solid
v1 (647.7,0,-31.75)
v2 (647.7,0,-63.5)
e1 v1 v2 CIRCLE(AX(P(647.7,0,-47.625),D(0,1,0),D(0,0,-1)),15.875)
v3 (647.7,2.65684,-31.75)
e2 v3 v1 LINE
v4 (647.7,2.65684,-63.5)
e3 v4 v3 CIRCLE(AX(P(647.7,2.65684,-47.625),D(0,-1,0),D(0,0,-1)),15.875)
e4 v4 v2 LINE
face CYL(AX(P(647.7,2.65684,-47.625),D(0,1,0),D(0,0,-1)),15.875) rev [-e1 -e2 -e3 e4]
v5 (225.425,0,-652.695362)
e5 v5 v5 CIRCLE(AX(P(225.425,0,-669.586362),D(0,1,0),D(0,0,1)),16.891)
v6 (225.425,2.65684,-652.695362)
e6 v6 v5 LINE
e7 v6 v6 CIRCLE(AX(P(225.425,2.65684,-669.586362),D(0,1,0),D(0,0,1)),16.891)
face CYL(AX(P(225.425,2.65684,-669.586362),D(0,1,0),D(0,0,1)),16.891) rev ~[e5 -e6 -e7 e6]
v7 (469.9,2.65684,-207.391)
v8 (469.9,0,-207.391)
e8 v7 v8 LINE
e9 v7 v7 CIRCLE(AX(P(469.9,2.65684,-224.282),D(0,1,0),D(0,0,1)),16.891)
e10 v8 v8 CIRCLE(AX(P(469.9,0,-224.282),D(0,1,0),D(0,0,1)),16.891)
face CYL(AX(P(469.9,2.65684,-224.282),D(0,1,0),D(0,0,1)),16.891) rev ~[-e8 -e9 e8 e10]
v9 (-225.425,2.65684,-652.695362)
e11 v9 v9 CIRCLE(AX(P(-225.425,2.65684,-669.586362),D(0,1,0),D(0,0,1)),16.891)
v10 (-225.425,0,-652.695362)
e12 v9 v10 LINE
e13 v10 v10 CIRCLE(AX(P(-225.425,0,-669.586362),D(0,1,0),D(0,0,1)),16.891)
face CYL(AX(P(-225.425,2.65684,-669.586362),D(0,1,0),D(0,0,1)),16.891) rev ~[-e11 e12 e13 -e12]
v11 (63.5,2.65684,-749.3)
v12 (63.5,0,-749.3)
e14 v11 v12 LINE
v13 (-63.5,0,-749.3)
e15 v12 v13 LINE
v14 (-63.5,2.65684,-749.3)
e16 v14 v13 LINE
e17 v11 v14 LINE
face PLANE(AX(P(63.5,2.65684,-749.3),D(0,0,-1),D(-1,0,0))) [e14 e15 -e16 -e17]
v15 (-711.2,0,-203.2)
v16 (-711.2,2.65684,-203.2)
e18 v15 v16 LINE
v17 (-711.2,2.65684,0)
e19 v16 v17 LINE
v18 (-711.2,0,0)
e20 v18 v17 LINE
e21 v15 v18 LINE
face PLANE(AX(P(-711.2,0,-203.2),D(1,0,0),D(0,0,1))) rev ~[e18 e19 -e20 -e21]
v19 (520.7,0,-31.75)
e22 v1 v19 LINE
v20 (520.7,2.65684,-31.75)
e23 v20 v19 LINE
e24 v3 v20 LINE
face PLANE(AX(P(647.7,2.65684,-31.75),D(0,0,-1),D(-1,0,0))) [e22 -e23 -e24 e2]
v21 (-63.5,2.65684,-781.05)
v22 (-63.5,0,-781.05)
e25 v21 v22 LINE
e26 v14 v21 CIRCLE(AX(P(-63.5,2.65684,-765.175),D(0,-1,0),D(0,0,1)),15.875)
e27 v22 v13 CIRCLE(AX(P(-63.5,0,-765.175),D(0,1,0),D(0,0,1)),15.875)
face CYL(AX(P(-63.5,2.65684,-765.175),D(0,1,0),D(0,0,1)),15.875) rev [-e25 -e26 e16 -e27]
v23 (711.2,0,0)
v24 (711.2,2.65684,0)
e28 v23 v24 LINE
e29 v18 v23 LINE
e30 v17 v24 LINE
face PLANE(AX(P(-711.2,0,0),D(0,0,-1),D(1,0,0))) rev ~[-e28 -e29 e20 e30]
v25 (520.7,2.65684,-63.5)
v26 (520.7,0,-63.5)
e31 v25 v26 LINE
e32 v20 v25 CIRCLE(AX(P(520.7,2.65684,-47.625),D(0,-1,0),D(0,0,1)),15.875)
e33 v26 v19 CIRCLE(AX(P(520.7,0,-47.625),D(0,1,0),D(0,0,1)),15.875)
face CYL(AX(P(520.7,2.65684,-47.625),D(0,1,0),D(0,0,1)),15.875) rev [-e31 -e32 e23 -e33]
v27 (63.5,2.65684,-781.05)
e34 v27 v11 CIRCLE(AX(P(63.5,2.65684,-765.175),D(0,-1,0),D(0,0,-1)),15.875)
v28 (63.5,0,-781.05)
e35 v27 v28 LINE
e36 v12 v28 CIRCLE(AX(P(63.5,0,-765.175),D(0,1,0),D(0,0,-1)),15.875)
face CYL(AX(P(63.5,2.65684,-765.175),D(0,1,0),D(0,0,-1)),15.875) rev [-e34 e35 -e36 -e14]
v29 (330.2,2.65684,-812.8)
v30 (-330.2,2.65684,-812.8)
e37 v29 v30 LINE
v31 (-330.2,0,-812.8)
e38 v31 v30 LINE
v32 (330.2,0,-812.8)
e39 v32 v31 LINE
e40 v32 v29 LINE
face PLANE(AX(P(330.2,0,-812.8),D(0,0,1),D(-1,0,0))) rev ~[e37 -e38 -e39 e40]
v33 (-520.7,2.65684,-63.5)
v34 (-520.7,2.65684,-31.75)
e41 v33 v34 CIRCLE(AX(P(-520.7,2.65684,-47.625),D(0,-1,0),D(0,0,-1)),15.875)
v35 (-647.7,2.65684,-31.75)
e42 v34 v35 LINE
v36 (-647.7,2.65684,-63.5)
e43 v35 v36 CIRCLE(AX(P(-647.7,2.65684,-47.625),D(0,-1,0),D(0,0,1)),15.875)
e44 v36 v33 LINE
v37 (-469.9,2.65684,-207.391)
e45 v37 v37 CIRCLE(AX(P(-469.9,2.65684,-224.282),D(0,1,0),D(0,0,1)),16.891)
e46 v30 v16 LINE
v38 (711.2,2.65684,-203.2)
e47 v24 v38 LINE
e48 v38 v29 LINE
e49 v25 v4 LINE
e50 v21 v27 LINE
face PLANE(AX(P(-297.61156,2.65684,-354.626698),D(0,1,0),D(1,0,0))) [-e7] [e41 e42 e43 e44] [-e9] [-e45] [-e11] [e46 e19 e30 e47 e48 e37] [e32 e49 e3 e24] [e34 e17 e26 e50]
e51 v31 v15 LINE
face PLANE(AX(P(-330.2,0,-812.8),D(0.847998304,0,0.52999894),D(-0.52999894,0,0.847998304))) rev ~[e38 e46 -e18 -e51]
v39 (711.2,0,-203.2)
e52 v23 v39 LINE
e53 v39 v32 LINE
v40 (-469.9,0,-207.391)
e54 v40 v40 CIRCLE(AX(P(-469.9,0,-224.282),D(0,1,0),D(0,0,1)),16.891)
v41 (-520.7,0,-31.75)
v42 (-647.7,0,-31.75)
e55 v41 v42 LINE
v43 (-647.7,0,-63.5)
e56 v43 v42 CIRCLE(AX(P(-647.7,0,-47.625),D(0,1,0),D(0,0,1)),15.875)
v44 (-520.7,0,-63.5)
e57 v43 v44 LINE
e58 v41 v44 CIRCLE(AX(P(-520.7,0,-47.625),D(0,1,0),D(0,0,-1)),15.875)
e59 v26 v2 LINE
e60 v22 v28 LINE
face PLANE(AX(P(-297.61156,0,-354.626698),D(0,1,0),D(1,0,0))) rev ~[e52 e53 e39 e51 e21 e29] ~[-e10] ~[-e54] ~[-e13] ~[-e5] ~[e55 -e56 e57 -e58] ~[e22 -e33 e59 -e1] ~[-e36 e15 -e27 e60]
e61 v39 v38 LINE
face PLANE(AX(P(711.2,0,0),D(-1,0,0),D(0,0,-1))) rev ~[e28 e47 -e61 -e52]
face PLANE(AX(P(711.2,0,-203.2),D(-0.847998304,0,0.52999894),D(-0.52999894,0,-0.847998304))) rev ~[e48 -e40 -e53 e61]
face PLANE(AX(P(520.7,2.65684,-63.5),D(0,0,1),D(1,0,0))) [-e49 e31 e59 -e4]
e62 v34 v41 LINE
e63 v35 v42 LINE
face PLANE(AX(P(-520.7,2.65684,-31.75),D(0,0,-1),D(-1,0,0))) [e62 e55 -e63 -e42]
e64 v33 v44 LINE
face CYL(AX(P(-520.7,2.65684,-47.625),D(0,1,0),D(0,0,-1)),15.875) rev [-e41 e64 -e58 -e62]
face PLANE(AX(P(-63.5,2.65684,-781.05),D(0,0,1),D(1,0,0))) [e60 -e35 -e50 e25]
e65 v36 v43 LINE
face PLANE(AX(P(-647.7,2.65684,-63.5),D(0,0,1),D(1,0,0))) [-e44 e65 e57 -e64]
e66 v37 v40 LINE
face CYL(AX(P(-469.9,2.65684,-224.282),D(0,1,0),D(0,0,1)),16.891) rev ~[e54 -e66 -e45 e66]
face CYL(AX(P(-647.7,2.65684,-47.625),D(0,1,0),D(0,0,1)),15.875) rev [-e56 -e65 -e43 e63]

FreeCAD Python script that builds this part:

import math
import FreeCAD as App
import Part
import Sketcher
from FreeCAD import Vector
Q = App.Units.Quantity

doc = App.newDocument("Part")
body = doc.addObject("PartDesign::Body", "Body")

# Sketch on XZ plane
sketch1 = body.newObject("Sketcher::SketchObject", "Sketch")
sketch1.AttachmentSupport = (doc.getObject("XZ_Plane"), [""])
sketch1.MapMode = "FlatFace"
sketch1.addGeometry([
    Part.LineSegment(Vector(-711.2, -203.2, 0), Vector(-711.2, 0, 0)),  # 0
    Part.LineSegment(Vector(-711.2, 0, 0), Vector(711.2, 0, 0)),  # 1
    Part.LineSegment(Vector(711.2, 0, 0), Vector(711.2, -203.2, 0)),  # 2
    Part.LineSegment(Vector(711.2, -203.2, 0), Vector(330.2, -812.8, 0)),  # 3
    Part.LineSegment(Vector(330.2, -812.8, 0), Vector(-330.2, -812.8, 0)),  # 4
    Part.LineSegment(Vector(-330.2, -812.8, 0), Vector(-711.2, -203.2, 0)),  # 5
], False)
sketch1.addConstraint([
    Sketcher.Constraint("Coincident", 0, 2, 1, 1),
    Sketcher.Constraint("Coincident", 1, 2, 2, 1),
    Sketcher.Constraint("Coincident", 2, 2, 3, 1),
    Sketcher.Constraint("Coincident", 3, 2, 4, 1),
    Sketcher.Constraint("Coincident", 4, 2, 5, 1),
    Sketcher.Constraint("Coincident", 5, 2, 0, 1),
    Sketcher.Constraint("Vertical", 0),
    Sketcher.Constraint("Horizontal", 1),
    Sketcher.Constraint("Vertical", 2),
    Sketcher.Constraint("Horizontal", 4),
    Sketcher.Constraint("Symmetric", 0, 2, 1, 2, -1, 1),
    Sketcher.Constraint("Horizontal", 2, 2, 5, 2),
    Sketcher.Constraint("Equal", 3, 5),
    Sketcher.Constraint("DistanceX", 1, 1, 1, 2, Q("56 in")),
    Sketcher.Constraint("DistanceX", 4, 2, 4, 1, Q("26 in")),
    Sketcher.Constraint("DistanceY", 0, 1, 0, 2, Q("8 in")),
    Sketcher.Constraint("DistanceY", 3, 2, -1, 1, Q("32 in")),
])
pad1 = body.newObject("PartDesign::Pad", "Pad")
pad1.Profile = sketch1
pad1.Length = Q("0.1046 in")
pad1.Reversed = True

# Sketch on XZ plane
sketch2 = body.newObject("Sketcher::SketchObject", "Sketch001")
sketch2.AttachmentSupport = (doc.getObject("XZ_Plane"), [""])
sketch2.MapMode = "FlatFace"
sketch2.AttachmentOffset = App.Placement(Vector(0, 0, -0.1046 * 25.4), App.Rotation())
sketch2.addGeometry([
    Part.LineSegment(Vector(63.5, -781.05, 0), Vector(-63.5, -781.05, 0)),  # 0
    Part.ArcOfCircle(Part.Circle(Vector(-63.5, -765.175, 0), Vector(0, 0, 1), 15.875), math.radians(90), math.radians(270)),  # 1
    Part.LineSegment(Vector(-63.5, -749.3, 0), Vector(63.5, -749.3, 0)),  # 2
    Part.ArcOfCircle(Part.Circle(Vector(63.5, -765.175, 0), Vector(0, 0, 1), 15.875), math.radians(-90), math.radians(90)),  # 3
    Part.LineSegment(Vector(-520.7, -63.5, 0), Vector(-647.7, -63.5, 0)),  # 4
    Part.ArcOfCircle(Part.Circle(Vector(-647.7, -47.625, 0), Vector(0, 0, 1), 15.875), math.radians(90), math.radians(270)),  # 5
    Part.LineSegment(Vector(-647.7, -31.75, 0), Vector(-520.7, -31.75, 0)),  # 6
    Part.ArcOfCircle(Part.Circle(Vector(-520.7, -47.625, 0), Vector(0, 0, 1), 15.875), math.radians(-90), math.radians(90)),  # 7
    Part.LineSegment(Vector(647.7, -63.5, 0), Vector(520.7, -63.5, 0)),  # 8
    Part.ArcOfCircle(Part.Circle(Vector(520.7, -47.625, 0), Vector(0, 0, 1), 15.875), math.radians(90), math.radians(270)),  # 9
    Part.LineSegment(Vector(520.7, -31.75, 0), Vector(647.7, -31.75, 0)),  # 10
    Part.ArcOfCircle(Part.Circle(Vector(647.7, -47.625, 0), Vector(0, 0, 1), 15.875), math.radians(-90), math.radians(90)),  # 11
], False)
sketch2.addConstraint([
    Sketcher.Constraint("Tangent", 0, 2, 1, 2),
    Sketcher.Constraint("Tangent", 1, 1, 2, 1),
    Sketcher.Constraint("Tangent", 2, 2, 3, 2),
    Sketcher.Constraint("Tangent", 3, 1, 0, 1),
    Sketcher.Constraint("Tangent", 4, 2, 5, 2),
    Sketcher.Constraint("Tangent", 5, 1, 6, 1),
    Sketcher.Constraint("Tangent", 6, 2, 7, 2),
    Sketcher.Constraint("Tangent", 7, 1, 4, 1),
    Sketcher.Constraint("Tangent", 8, 2, 9, 2),
    Sketcher.Constraint("Tangent", 9, 1, 10, 1),
    Sketcher.Constraint("Tangent", 10, 2, 11, 2),
    Sketcher.Constraint("Tangent", 11, 1, 8, 1),
    Sketcher.Constraint("Horizontal", 0),
    Sketcher.Constraint("Horizontal", 2),
    Sketcher.Constraint("Horizontal", 4),
    Sketcher.Constraint("Horizontal", 6),
    Sketcher.Constraint("Horizontal", 8),
    Sketcher.Constraint("Horizontal", 10),
    Sketcher.Constraint("Equal", 3, 5),
    Sketcher.Constraint("Equal", 7, 9),
    Sketcher.Constraint("Symmetric", 7, 3, 9, 3, -2),
    Sketcher.Constraint("Equal", 2, 4),
    Sketcher.Constraint("Equal", 6, 8),
    Sketcher.Constraint("DistanceX", 0, 2, 0, 1, Q("5 in")),
    Sketcher.Constraint("Radius", 1, Q("0.625 in")),
    Sketcher.Constraint("DistanceX", 5, 3, 1, 3, Q("23 in")),
    Sketcher.Constraint("DistanceX", 3, 3, 9, 3, Q("18 in")),
    Sketcher.Constraint("DistanceY", 1, 1, 4, 2, Q("27 in")),
    Sketcher.Constraint("DistanceY", 1, 1, -1, 1, Q("29.5 in")),
])
pocket1 = body.newObject("PartDesign::Pocket", "Pocket")
pocket1.Profile = sketch2
pocket1.Type = "ThroughAll"
pocket1.Reversed = True

# Sketch on XZ plane
sketch3 = body.newObject("Sketcher::SketchObject", "Sketch002")
sketch3.AttachmentSupport = (doc.getObject("XZ_Plane"), [""])
sketch3.MapMode = "FlatFace"
sketch3.AttachmentOffset = App.Placement(Vector(0, 0, -0.1046 * 25.4), App.Rotation())
sketch3.addGeometry([
    Part.Circle(Vector(-469.9, -224.282, 0), Vector(0, 0, 1), 16.891),
    Part.Circle(Vector(-225.425, -669.586362, 0), Vector(0, 0, 1), 16.891),
    Part.Circle(Vector(225.425, -669.586362, 0), Vector(0, 0, 1), 16.891),
    Part.Circle(Vector(469.9, -224.282, 0), Vector(0, 0, 1), 16.891),
], False)
sketch3.addConstraint([
    Sketcher.Constraint("Equal", 0, 1),
    Sketcher.Constraint("Equal", 1, 2),
    Sketcher.Constraint("Equal", 2, 3),
    Sketcher.Constraint("Symmetric", 1, 3, 2, 3, -2),
    Sketcher.Constraint("Symmetric", 0, 3, 3, 3, -2),
    Sketcher.Constraint("Diameter", 0, Q("1.33 in")),
    Sketcher.Constraint("DistanceX", 0, 3, 3, 3, Q("37 in")),
    Sketcher.Constraint("DistanceY", 0, 3, -1, 1, Q("8.83 in")),
    Sketcher.Constraint("DistanceX", 1, 3, 2, 3, Q("17.75 in")),
    Sketcher.Constraint("DistanceY", 1, 3, -1, 1, Q("669.586362 mm")),
])
pocket2 = body.newObject("PartDesign::Pocket", "Pocket001")
pocket2.Profile = sketch3
pocket2.Type = "ThroughAll"
pocket2.Reversed = True

doc.recompute()
